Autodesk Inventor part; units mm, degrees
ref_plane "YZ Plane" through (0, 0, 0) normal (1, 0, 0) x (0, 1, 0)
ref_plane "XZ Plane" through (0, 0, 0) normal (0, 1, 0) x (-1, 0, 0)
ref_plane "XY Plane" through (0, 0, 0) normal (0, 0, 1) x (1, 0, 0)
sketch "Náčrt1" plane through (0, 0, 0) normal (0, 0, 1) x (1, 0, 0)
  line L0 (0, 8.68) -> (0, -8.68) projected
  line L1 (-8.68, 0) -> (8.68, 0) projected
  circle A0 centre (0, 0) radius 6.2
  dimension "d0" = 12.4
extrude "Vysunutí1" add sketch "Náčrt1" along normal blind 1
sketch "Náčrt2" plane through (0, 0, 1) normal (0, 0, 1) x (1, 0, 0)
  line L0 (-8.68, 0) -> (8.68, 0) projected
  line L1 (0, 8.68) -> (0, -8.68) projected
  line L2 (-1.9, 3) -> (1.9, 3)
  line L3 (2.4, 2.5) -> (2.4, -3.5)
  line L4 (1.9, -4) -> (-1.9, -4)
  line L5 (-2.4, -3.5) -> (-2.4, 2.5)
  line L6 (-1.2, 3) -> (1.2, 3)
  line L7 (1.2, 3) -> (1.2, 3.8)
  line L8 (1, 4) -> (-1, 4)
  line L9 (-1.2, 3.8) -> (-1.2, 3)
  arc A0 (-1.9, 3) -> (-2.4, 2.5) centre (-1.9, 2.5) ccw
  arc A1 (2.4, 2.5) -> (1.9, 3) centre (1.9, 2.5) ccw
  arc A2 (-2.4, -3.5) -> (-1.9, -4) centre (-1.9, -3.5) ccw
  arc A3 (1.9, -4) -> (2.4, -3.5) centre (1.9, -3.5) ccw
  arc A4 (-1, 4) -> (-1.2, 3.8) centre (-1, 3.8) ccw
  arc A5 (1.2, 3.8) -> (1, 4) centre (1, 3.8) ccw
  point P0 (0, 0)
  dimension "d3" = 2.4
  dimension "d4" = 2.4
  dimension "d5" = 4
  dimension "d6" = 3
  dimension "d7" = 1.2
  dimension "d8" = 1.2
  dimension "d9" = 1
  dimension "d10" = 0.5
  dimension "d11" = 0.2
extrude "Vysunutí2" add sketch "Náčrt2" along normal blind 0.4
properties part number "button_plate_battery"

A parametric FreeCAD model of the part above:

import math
import FreeCAD as App
import Part
import Sketcher

V = App.Vector
Q = App.Units.Quantity

doc = App.newDocument("Part")
body = doc.addObject("PartDesign::Body", "Body")

# Sketch on XY plane
sketch1 = body.newObject("Sketcher::SketchObject", "Sketch")
sketch1.AttachmentSupport = (doc.getObject("XY_Plane"), [""])
sketch1.MapMode = "FlatFace"
sketch1.addGeometry(Part.Circle(V(0, 0, 0), V(0, 0, 1), 6), False)
sketch1.addConstraint([
    Sketcher.Constraint("Coincident", 0, 3, -1, 1),
    Sketcher.Constraint("Diameter", 0, Q("12.4 mm")),
])
pad1 = body.newObject("PartDesign::Pad", "Pad")
pad1.Profile = sketch1
pad1.Length = 1

# Sketch on XY plane
sketch2 = body.newObject("Sketcher::SketchObject", "Sketch001")
sketch2.AttachmentSupport = (doc.getObject("XY_Plane"), [""])
sketch2.MapMode = "FlatFace"
sketch2.AttachmentOffset = App.Placement(V(0, 0, 1), App.Rotation())
sketch2.addGeometry([
    Part.LineSegment(V(-2.4, 2.5, 0), V(-2.4, -3.5, 0)),  # 0
    Part.ArcOfCircle(Part.Circle(V(-1.9, -3.5, 0), V(0, 0, 1), 0.5), math.radians(180), math.radians(270)),  # 1
    Part.LineSegment(V(-1.9, -4, 0), V(1.9, -4, 0)),  # 2
    Part.ArcOfCircle(Part.Circle(V(1.9, -3.5, 0), V(0, 0, 1), 0.5), math.radians(-90), math.radians(0)),  # 3
    Part.LineSegment(V(2.4, -3.5, 0), V(2.4, 2.5, 0)),  # 4
    Part.ArcOfCircle(Part.Circle(V(1.9, 2.5, 0), V(0, 0, 1), 0.5), math.radians(0), math.radians(90)),  # 5
    Part.LineSegment(V(1.9, 3, 0), V(1.2, 3, 0)),  # 6
    Part.LineSegment(V(1.2, 3, 0), V(1.2, 3.8, 0)),  # 7
    Part.ArcOfCircle(Part.Circle(V(1, 3.8, 0), V(0, 0, 1), 0.2), math.radians(0), math.radians(90)),  # 8
    Part.LineSegment(V(1, 4, 0), V(-1, 4, 0)),  # 9
    Part.ArcOfCircle(Part.Circle(V(-1, 3.8, 0), V(0, 0, 1), 0.2), math.radians(90), math.radians(180)),  # 10
    Part.LineSegment(V(-1.2, 3.8, 0), V(-1.2, 3, 0)),  # 11
    Part.LineSegment(V(-1.2, 3, 0), V(-1.9, 3, 0)),  # 12
    Part.ArcOfCircle(Part.Circle(V(-1.9, 2.5, 0), V(0, 0, 1), 0.5), math.radians(90), math.radians(180)),  # 13
], False)
sketch2.addConstraint([
    Sketcher.Constraint("Tangent", 0, 2, 1, 1),
    Sketcher.Constraint("Tangent", 1, 2, 2, 1),
    Sketcher.Constraint("Tangent", 2, 2, 3, 1),
    Sketcher.Constraint("Tangent", 3, 2, 4, 1),
    Sketcher.Constraint("Tangent", 4, 2, 5, 1),
    Sketcher.Constraint("Tangent", 5, 2, 6, 1),
    Sketcher.Constraint("Coincident", 6, 2, 7, 1),
    Sketcher.Constraint("Tangent", 7, 2, 8, 1),
    Sketcher.Constraint("Tangent", 8, 2, 9, 1),
    Sketcher.Constraint("Tangent", 9, 2, 10, 1),
    Sketcher.Constraint("Tangent", 10, 2, 11, 1),
    Sketcher.Constraint("Coincident", 11, 2, 12, 1),
    Sketcher.Constraint("Tangent", 12, 2, 13, 1),
    Sketcher.Constraint("Tangent", 13, 2, 0, 1),
    Sketcher.Constraint("Vertical", 0),
    Sketcher.Constraint("Horizontal", 2),
    Sketcher.Constraint("Vertical", 4),
    Sketcher.Constraint("Horizontal", 6),
    Sketcher.Constraint("Vertical", 7),
    Sketcher.Constraint("Horizontal", 9),
    Sketcher.Constraint("Vertical", 11),
    Sketcher.Constraint("Horizontal", 12),
    Sketcher.Constraint("Equal", 1, 3),
    Sketcher.Constraint("Equal", 3, 5),
    Sketcher.Constraint("Equal", 8, 10),
    Sketcher.Constraint("Equal", 5, 13),
    Sketcher.Constraint("Symmetric", 5, 3, 13, 3, -2),
    Sketcher.Constraint("Equal", 6, 12),
    Sketcher.Constraint("Radius", 1, Q("0.5 mm")),
    Sketcher.Constraint("Radius", 8, Q("0.2 mm")),
    Sketcher.Constraint("DistanceX", -1, 1, 8, 3, Q("1 mm")),
    Sketcher.Constraint("DistanceY", 1, 2, -1, 1, Q("4 mm")),
    Sketcher.Constraint("DistanceY", -1, 1, 5, 2, Q("3 mm")),
    Sketcher.Constraint("DistanceY", -1, 1, 8, 2, Q("4 mm")),
    Sketcher.Constraint("DistanceX", 0, 2, -1, 1, Q("2.4 mm")),
])
pad2 = body.newObject("PartDesign::Pad", "Pad001")
pad2.Profile = sketch2
pad2.Length = 0.4

doc.recompute()
